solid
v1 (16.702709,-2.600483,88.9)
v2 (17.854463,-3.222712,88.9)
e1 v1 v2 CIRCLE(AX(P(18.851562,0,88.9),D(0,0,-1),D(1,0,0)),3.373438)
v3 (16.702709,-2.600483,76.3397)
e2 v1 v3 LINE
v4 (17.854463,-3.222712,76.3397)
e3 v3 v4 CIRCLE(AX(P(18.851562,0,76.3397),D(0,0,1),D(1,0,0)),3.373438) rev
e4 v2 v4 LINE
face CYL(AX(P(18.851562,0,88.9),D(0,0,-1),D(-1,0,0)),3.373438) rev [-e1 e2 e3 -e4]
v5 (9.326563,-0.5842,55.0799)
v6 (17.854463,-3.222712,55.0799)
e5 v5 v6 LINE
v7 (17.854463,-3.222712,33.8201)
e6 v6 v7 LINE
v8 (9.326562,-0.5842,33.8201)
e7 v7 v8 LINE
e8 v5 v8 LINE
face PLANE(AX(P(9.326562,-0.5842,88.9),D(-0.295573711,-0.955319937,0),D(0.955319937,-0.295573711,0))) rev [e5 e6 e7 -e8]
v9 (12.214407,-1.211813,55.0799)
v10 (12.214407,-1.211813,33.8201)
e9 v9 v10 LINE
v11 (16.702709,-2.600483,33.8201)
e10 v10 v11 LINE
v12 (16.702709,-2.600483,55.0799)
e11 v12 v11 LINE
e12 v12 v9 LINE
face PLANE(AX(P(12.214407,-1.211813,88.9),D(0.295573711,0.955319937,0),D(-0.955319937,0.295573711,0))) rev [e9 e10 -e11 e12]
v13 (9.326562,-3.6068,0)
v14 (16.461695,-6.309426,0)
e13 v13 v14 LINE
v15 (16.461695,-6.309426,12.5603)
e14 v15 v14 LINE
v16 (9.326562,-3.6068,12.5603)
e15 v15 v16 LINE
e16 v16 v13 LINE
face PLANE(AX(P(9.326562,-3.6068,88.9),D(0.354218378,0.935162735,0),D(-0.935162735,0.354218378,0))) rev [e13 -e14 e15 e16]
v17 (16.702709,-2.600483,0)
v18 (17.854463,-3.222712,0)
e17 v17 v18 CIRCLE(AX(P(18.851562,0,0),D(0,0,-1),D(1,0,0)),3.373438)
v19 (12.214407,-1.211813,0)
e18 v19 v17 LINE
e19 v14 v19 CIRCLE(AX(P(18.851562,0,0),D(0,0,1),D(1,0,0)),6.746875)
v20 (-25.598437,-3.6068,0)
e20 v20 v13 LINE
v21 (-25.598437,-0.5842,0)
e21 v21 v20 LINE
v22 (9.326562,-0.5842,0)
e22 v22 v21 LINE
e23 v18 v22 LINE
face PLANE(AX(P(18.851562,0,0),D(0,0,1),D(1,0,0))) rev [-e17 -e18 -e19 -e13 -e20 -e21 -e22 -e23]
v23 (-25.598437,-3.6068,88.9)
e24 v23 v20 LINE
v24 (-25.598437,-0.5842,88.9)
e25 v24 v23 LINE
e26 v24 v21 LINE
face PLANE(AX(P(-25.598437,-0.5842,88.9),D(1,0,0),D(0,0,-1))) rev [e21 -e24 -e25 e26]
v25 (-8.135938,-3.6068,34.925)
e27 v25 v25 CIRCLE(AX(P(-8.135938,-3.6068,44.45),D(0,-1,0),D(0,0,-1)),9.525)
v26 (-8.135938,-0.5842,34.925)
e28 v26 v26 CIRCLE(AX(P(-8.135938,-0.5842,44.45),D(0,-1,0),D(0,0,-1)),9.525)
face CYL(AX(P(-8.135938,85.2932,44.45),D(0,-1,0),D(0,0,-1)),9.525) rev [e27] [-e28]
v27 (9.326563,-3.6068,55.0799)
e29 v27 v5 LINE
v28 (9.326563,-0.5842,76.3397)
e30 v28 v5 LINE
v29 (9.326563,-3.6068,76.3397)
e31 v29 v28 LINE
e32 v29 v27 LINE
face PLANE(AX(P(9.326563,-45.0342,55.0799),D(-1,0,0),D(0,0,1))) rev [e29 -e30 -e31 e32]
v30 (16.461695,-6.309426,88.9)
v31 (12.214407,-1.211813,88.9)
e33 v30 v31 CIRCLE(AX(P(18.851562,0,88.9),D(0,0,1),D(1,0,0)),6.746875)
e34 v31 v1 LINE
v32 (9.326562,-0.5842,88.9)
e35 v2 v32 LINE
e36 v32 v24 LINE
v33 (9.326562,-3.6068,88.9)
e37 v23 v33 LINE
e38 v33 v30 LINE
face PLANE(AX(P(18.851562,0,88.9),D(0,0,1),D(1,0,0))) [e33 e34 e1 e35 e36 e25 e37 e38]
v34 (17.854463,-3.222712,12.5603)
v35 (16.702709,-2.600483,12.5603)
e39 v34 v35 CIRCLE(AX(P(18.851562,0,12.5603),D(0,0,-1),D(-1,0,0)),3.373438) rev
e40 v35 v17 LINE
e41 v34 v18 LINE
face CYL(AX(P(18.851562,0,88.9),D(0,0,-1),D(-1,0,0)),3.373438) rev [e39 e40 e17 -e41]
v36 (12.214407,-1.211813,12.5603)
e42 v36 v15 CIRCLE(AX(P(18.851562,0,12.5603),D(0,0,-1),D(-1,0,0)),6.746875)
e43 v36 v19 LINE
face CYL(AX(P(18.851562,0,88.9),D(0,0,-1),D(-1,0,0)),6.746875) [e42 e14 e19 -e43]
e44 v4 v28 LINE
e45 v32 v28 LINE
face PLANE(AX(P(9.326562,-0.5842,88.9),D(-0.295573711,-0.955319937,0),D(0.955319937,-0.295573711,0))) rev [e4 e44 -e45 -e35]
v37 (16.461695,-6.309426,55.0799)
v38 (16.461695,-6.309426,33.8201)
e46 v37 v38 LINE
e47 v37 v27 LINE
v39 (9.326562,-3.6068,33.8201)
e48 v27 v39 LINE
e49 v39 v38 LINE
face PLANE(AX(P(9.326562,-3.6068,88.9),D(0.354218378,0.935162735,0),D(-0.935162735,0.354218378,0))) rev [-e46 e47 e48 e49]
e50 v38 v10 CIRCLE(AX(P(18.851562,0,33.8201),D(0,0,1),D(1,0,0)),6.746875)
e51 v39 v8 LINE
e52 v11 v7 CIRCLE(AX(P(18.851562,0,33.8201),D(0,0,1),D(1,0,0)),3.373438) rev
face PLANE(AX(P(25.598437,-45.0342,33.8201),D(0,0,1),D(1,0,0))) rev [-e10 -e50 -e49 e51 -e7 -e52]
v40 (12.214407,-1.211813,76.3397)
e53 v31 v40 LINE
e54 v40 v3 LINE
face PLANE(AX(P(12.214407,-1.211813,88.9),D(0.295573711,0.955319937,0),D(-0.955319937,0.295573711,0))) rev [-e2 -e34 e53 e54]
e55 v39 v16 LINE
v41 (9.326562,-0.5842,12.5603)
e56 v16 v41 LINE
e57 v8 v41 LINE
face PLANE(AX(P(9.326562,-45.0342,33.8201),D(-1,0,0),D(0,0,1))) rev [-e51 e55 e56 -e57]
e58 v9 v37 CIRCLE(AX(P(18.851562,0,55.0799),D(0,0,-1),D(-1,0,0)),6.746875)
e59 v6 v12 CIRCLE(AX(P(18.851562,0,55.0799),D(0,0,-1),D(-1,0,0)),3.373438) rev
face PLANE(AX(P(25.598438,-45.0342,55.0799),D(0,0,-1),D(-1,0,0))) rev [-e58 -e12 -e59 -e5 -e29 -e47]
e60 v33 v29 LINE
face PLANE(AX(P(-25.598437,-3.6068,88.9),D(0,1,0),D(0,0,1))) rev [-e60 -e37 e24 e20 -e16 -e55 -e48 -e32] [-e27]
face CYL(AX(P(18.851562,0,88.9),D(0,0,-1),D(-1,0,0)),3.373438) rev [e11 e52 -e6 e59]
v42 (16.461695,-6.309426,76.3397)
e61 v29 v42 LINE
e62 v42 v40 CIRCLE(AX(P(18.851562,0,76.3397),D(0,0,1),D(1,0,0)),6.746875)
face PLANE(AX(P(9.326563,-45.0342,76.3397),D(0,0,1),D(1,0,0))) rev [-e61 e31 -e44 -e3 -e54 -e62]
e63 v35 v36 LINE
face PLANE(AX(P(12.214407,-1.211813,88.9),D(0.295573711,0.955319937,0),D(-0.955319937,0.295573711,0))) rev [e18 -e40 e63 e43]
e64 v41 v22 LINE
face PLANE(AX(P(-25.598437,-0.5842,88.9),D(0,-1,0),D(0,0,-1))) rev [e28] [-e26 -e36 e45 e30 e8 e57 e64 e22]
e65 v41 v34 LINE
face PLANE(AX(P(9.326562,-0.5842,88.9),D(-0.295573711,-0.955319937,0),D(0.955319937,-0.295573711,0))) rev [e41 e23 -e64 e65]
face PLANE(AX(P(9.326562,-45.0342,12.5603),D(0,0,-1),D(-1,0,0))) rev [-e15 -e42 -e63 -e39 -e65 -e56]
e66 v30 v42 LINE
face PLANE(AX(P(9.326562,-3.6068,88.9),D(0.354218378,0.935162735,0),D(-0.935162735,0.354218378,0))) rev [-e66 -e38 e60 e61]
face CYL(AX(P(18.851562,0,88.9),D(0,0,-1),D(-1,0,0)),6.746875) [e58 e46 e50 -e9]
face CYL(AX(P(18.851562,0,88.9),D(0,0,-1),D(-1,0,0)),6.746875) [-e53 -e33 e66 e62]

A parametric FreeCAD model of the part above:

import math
import FreeCAD as App
import Part
import Sketcher
Q = App.Units.Quantity

doc = App.newDocument("Part")
body = doc.addObject("PartDesign::Body", "Body")

sketch1 = doc.addObject("Sketcher::SketchObject", "Sketch")
body.addObject(sketch1)
sketch1.AttachmentSupport = (doc.XY_Plane, [""])
sketch1.MapMode = "FlatFace"
sketch1.addGeometry(Part.LineSegment(App.Vector(9.326562, -3.6068, 0), App.Vector(16.461695, -6.309426, 0)), False)
sketch1.addGeometry(Part.ArcOfCircle(Part.Circle(App.Vector(18.851563, 0, 0), App.Vector(0, 0, 1), 6.746875), math.radians(-110.745548), math.radians(190.3471)), False)
sketch1.addGeometry(Part.LineSegment(App.Vector(12.214407, -1.211813, 0), App.Vector(16.702709, -2.600483, 0)), False)
sketch1.addGeometry(Part.ArcOfCircle(Part.Circle(App.Vector(18.851563, 0, 0), App.Vector(0, 0, 1), 3.373438), math.radians(-107.191943), math.radians(230.432104)), False)
sketch1.addGeometry(Part.LineSegment(App.Vector(17.854463, -3.222712, 0), App.Vector(9.326562, -0.5842, 0)), False)
sketch1.addGeometry(Part.LineSegment(App.Vector(9.326562, -0.5842, 0), App.Vector(-25.598437, -0.5842, 0)), False)
sketch1.addGeometry(Part.LineSegment(App.Vector(-25.598437, -0.5842, 0), App.Vector(-25.598437, -3.6068, 0)), False)
sketch1.addGeometry(Part.LineSegment(App.Vector(-25.598437, -3.6068, 0), App.Vector(9.326562, -3.6068, 0)), False)
sketch1.addConstraint(Sketcher.Constraint("Tangent", 0, 2, 1, 1))
sketch1.addConstraint(Sketcher.Constraint("Coincident", 1, 2, 2, 1))
sketch1.addConstraint(Sketcher.Constraint("Coincident", 2, 2, 3, 2))
sketch1.addConstraint(Sketcher.Constraint("Tangent", 3, 1, 4, 1))
sketch1.addConstraint(Sketcher.Constraint("Coincident", 4, 2, 5, 1))
sketch1.addConstraint(Sketcher.Constraint("Coincident", 5, 2, 6, 1))
sketch1.addConstraint(Sketcher.Constraint("Coincident", 6, 2, 7, 1))
sketch1.addConstraint(Sketcher.Constraint("Coincident", 7, 2, 0, 1))
sketch1.addConstraint(Sketcher.Constraint("Horizontal", 5))
sketch1.addConstraint(Sketcher.Constraint("Vertical", 6))
sketch1.addConstraint(Sketcher.Constraint("Horizontal", 7))
sketch1.addConstraint(Sketcher.Constraint("Coincident", 3, 3, 1, 3))
sketch1.addConstraint(Sketcher.Constraint("PointOnObject", 1, 3, -1))
sketch1.addConstraint(Sketcher.Constraint("Parallel", 2, 4))
sketch1.addConstraint(Sketcher.Constraint("Vertical", 4, 2, 7, 2))
sketch1.addConstraint(Sketcher.Constraint("Radius", 1, Q("0.265625 in")))
sketch1.addConstraint(Sketcher.Constraint("DistanceX", 5, 2, 5, 1, Q("1.375 in")))
sketch1.addConstraint(Sketcher.Constraint("DistanceY", 6, 2, 6, 1, Q("0.119 in")))
sketch1.addConstraint(Sketcher.Constraint("DistanceY", 4, 2, -1, 1, Q("0.023 in")))
sketch1.addConstraint(Sketcher.Constraint("DistanceX", 4, 2, 1, 3, Q("0.375 in")))
sketch1.addConstraint(Sketcher.Constraint("Radius", 3, Q("3.373438 mm")))
sketch1.addConstraint(Sketcher.Constraint("DistanceY", 3, 1, 1, 2, Q("2.010899 mm")))
sketch1.addConstraint(Sketcher.Constraint("DistanceX", -1, 1, 2, 2, Q("16.702709 mm")))
pad1 = doc.addObject("PartDesign::Pad", "Pad")
body.addObject(pad1)
pad1.Profile = sketch1
pad1.Length = Q("3.5 in")

sketch2 = doc.addObject("Sketcher::SketchObject", "Sketch001")
body.addObject(sketch2)
sketch2.AttachmentSupport = (doc.XZ_Plane, [""])
sketch2.MapMode = "FlatFace"
sketch2.AttachmentOffset = App.Placement(App.Vector(0, 0, 0.023 * 25.4), App.Rotation())
sketch2.addGeometry(Part.LineSegment(App.Vector(9.326562, 55.0799, 0), App.Vector(9.326562, 76.3397, 0)), False)
sketch2.addGeometry(Part.LineSegment(App.Vector(9.326562, 76.3397, 0), App.Vector(25.598437, 76.3397, 0)), False)
sketch2.addGeometry(Part.LineSegment(App.Vector(25.598437, 76.3397, 0), App.Vector(25.598437, 55.0799, 0)), False)
sketch2.addGeometry(Part.LineSegment(App.Vector(25.598437, 55.0799, 0), App.Vector(9.326562, 55.0799, 0)), False)
sketch2.addGeometry(Part.LineSegment(App.Vector(9.326562, 12.5603, 0), App.Vector(9.326562, 33.8201, 0)), False)
sketch2.addGeometry(Part.LineSegment(App.Vector(9.326562, 33.8201, 0), App.Vector(25.598437, 33.8201, 0)), False)
sketch2.addGeometry(Part.LineSegment(App.Vector(25.598437, 33.8201, 0), App.Vector(25.598437, 12.5603, 0)), False)
sketch2.addGeometry(Part.LineSegment(App.Vector(25.598437, 12.5603, 0), App.Vector(9.326562, 12.5603, 0)), False)
sketch2.addConstraint(Sketcher.Constraint("Coincident", 0, 2, 1, 1))
sketch2.addConstraint(Sketcher.Constraint("Coincident", 1, 2, 2, 1))
sketch2.addConstraint(Sketcher.Constraint("Coincident", 2, 2, 3, 1))
sketch2.addConstraint(Sketcher.Constraint("Coincident", 3, 2, 0, 1))
sketch2.addConstraint(Sketcher.Constraint("Coincident", 4, 2, 5, 1))
sketch2.addConstraint(Sketcher.Constraint("Coincident", 5, 2, 6, 1))
sketch2.addConstraint(Sketcher.Constraint("Coincident", 6, 2, 7, 1))
sketch2.addConstraint(Sketcher.Constraint("Coincident", 7, 2, 4, 1))
sketch2.addConstraint(Sketcher.Constraint("Vertical", 0))
sketch2.addConstraint(Sketcher.Constraint("Horizontal", 1))
sketch2.addConstraint(Sketcher.Constraint("Vertical", 2))
sketch2.addConstraint(Sketcher.Constraint("Horizontal", 3))
sketch2.addConstraint(Sketcher.Constraint("Vertical", 4))
sketch2.addConstraint(Sketcher.Constraint("Horizontal", 5))
sketch2.addConstraint(Sketcher.Constraint("Vertical", 6))
sketch2.addConstraint(Sketcher.Constraint("Horizontal", 7))
sketch2.addConstraint(Sketcher.Constraint("Vertical", 3, 2, 4, 2))
sketch2.addConstraint(Sketcher.Constraint("Vertical", 2, 2, 5, 2))
sketch2.addConstraint(Sketcher.Constraint("Equal", 2, 4))
sketch2.addConstraint(Sketcher.Constraint("DistanceX", 1, 1, 1, 2, Q("0.640625 in")))
sketch2.addConstraint(Sketcher.Constraint("DistanceY", 0, 1, 0, 2, Q("0.837 in")))
sketch2.addConstraint(Sketcher.Constraint("DistanceY", 4, 2, 3, 2, Q("0.837 in")))
sketch2.addConstraint(Sketcher.Constraint("DistanceY", -1, 1, 0, 2, Q("3.0055 in")))
sketch2.addConstraint(Sketcher.Constraint("DistanceX", -1, 1, 0, 2, Q("9.326562 mm")))
pocket1 = doc.addObject("PartDesign::Pocket", "Pocket")
body.addObject(pocket1)
pocket1.Profile = sketch2
pocket1.Length = Q("3.5 in")
pocket1.Midplane = True

sketch3 = doc.addObject("Sketcher::SketchObject", "Sketch002")
body.addObject(sketch3)
sketch3.AttachmentSupport = (doc.XZ_Plane, [""])
sketch3.MapMode = "FlatFace"
sketch3.AttachmentOffset = App.Placement(App.Vector(0, 0, 0.142 * 25.4), App.Rotation())
sketch3.addGeometry(Part.Circle(App.Vector(-8.135938, 44.45, 0), App.Vector(0, 0, 1), 9.525), False)
sketch3.addConstraint(Sketcher.Constraint("Diameter", 0, Q("0.75 in")))
sketch3.addConstraint(Sketcher.Constraint("DistanceY", -1, 1, 0, 3, Q("1.75 in")))
sketch3.addConstraint(Sketcher.Constraint("DistanceX", 0, 3, -1, 1, Q("8.135938 mm")))
pocket2 = doc.addObject("PartDesign::Pocket", "Pocket001")
body.addObject(pocket2)
pocket2.Profile = sketch3
pocket2.Length = Q("3.5 in")

doc.recompute()
